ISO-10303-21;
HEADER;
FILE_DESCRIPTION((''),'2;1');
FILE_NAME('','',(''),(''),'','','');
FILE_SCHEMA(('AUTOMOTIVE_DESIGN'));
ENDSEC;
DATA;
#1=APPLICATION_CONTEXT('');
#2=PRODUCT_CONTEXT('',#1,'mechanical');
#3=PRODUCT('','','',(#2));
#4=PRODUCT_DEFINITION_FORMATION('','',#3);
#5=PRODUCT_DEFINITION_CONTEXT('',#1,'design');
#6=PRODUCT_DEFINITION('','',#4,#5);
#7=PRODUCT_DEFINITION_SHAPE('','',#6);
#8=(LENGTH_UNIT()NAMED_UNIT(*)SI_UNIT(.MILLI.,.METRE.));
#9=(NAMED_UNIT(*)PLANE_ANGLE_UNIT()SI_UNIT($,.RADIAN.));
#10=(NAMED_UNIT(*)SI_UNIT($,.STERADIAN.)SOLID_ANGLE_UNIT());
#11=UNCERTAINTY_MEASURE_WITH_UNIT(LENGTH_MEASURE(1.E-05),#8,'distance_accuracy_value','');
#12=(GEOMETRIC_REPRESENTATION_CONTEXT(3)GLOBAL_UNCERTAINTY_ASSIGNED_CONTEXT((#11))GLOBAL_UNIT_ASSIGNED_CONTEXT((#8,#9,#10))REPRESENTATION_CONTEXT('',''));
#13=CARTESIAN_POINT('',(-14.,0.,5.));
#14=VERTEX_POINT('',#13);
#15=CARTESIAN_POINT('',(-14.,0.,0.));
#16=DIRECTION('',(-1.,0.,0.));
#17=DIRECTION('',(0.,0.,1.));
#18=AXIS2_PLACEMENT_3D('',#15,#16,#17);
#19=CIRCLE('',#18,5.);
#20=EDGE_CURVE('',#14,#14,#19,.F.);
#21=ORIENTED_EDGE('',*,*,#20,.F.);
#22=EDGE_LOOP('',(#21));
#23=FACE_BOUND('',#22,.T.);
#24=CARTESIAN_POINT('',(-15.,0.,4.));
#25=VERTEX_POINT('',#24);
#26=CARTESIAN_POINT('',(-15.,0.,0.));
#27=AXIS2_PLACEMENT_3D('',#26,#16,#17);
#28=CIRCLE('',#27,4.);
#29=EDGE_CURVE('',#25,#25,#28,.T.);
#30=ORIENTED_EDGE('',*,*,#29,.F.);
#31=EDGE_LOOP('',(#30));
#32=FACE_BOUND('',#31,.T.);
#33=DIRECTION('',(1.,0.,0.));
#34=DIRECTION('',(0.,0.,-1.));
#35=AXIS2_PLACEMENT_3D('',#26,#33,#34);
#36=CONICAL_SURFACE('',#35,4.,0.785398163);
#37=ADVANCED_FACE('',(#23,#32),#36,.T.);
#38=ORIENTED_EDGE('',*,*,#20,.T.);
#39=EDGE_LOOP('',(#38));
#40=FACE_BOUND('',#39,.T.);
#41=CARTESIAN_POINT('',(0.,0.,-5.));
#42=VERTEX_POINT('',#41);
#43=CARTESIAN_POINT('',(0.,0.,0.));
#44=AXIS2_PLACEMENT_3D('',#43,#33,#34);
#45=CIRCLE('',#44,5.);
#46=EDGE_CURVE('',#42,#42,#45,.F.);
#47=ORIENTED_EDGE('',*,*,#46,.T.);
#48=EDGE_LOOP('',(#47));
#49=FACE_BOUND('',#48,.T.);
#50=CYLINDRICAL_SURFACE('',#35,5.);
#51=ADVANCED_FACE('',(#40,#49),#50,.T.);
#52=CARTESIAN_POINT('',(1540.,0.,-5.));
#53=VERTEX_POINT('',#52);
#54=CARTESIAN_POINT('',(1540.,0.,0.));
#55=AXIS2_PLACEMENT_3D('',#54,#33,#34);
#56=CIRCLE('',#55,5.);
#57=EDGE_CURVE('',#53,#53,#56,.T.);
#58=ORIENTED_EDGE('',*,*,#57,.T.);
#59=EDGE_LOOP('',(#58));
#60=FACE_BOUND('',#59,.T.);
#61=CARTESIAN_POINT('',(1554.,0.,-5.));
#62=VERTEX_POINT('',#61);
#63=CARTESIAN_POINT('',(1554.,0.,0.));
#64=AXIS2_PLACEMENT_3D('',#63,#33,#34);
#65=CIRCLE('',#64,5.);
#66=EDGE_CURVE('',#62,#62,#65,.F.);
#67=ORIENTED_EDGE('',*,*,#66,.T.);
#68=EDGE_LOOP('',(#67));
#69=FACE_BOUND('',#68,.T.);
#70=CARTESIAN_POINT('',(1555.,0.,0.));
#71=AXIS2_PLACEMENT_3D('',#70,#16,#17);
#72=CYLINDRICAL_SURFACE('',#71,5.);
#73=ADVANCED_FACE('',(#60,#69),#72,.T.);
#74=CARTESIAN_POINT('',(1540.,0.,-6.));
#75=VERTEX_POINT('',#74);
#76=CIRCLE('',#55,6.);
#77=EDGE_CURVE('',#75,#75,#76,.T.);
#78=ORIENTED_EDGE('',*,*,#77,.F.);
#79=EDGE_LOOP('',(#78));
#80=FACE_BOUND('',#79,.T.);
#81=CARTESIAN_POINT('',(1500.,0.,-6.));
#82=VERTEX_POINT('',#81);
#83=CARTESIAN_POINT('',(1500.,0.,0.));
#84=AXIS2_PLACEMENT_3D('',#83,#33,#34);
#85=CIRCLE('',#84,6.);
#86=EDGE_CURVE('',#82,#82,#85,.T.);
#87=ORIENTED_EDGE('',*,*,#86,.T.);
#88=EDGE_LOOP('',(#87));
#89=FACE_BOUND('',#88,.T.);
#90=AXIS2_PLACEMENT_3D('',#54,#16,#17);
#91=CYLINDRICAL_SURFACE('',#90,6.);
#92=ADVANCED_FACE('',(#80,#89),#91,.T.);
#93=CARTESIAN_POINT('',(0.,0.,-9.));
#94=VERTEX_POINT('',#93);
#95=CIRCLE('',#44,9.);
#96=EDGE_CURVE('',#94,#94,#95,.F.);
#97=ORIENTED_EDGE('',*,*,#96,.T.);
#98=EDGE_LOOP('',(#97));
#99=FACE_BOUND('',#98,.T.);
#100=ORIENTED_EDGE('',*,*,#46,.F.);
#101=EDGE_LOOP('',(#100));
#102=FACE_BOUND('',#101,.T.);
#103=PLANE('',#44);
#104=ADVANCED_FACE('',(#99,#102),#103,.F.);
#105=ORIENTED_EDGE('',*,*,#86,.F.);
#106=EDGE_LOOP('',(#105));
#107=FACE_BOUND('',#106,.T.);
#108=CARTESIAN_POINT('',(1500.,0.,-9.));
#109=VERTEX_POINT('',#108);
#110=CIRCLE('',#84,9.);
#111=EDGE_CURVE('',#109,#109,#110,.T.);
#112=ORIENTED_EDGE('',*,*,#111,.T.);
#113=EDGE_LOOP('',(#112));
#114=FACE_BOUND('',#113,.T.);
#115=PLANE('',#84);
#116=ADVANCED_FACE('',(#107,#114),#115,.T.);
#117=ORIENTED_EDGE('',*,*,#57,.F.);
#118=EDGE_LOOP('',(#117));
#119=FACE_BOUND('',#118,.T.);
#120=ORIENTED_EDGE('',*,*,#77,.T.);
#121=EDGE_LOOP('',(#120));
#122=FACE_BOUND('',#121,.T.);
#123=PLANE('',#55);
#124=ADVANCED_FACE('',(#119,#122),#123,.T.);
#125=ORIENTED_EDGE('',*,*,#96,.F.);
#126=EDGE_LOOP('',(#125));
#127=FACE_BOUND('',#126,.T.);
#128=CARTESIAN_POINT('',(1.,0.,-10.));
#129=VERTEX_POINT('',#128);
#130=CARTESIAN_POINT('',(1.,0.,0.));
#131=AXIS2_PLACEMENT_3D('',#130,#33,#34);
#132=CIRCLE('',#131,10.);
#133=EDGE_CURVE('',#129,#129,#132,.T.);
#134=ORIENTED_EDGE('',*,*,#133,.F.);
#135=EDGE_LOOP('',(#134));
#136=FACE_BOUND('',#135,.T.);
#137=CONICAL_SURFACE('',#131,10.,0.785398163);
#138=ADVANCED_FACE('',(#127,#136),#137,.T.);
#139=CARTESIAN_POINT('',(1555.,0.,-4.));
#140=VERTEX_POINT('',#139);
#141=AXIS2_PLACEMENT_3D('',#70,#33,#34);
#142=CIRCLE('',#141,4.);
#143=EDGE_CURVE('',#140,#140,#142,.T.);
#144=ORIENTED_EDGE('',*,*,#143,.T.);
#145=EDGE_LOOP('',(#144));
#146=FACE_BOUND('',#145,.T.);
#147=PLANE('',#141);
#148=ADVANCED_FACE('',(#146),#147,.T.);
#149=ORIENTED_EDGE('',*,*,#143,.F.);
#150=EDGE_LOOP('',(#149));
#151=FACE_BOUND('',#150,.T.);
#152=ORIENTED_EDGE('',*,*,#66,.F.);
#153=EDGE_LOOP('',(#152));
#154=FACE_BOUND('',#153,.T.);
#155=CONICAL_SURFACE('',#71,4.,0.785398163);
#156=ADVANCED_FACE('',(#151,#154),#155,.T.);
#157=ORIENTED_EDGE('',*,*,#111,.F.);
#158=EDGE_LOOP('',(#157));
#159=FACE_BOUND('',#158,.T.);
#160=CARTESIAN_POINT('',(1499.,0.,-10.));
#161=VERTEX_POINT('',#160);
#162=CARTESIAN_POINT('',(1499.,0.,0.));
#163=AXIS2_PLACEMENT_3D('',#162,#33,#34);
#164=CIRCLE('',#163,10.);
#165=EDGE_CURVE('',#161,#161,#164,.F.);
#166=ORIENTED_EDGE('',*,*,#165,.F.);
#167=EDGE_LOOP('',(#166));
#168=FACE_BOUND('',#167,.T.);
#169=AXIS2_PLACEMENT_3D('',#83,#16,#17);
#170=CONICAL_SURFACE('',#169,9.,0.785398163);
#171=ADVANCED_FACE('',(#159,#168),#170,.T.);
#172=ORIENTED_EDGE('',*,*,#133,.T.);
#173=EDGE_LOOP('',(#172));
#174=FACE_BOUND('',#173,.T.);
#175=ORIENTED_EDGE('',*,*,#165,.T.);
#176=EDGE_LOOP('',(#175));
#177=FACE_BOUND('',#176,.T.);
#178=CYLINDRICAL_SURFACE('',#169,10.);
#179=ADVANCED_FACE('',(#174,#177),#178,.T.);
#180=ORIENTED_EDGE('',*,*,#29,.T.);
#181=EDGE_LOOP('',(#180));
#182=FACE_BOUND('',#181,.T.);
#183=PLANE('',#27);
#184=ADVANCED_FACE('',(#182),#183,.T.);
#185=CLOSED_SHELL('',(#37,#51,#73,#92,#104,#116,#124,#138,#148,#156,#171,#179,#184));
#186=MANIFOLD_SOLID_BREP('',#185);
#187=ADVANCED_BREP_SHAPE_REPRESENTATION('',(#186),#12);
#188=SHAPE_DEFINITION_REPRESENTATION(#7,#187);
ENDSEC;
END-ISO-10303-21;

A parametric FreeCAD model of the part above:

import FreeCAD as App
import Part
import Sketcher

V = App.Vector
Q = App.Units.Quantity


def edges_at(feature, points):
    """Names of the edges that pass closest to the given points."""
    edges = feature.Shape.Edges
    near = lambda p: min(range(len(edges)), key=lambda i: edges[i].distToShape(Part.Vertex(*p))[0])
    return sorted({f"Edge{near(p) + 1}" for p in points})

doc = App.newDocument("Part")
body = doc.addObject("PartDesign::Body", "Body")

# Sketch on YZ plane
sketch1 = body.newObject("Sketcher::SketchObject", "Sketch")
sketch1.AttachmentSupport = (doc.getObject("YZ_Plane"), [""])
sketch1.MapMode = "FlatFace"
sketch1.addGeometry(Part.Circle(V(0, 0, 0), V(0, 0, 1), 10), False)
sketch1.addConstraint([
    Sketcher.Constraint("Coincident", 0, 3, -1, 1),
    Sketcher.Constraint("Diameter", 0, Q("20 mm")),
])
pad1 = body.newObject("PartDesign::Pad", "Pad")
pad1.Profile = sketch1
pad1.Length = 1500

# Sketch on YZ plane
sketch2 = body.newObject("Sketcher::SketchObject", "Sketch001")
sketch2.AttachmentSupport = (doc.getObject("YZ_Plane"), [""])
sketch2.MapMode = "FlatFace"
sketch2.addGeometry(Part.Circle(V(0, 0, 0), V(0, 0, 1), 5), False)
sketch2.addConstraint([
    Sketcher.Constraint("Coincident", 0, 3, -1, 1),
    Sketcher.Constraint("Diameter", 0, Q("10 mm")),
])
pad2 = body.newObject("PartDesign::Pad", "Pad001")
pad2.Profile = sketch2
pad2.Length = 15
pad2.Reversed = True

# Sketch on YZ plane
sketch3 = body.newObject("Sketcher::SketchObject", "Sketch002")
sketch3.AttachmentSupport = (doc.getObject("YZ_Plane"), [""])
sketch3.MapMode = "FlatFace"
sketch3.AttachmentOffset = App.Placement(V(0, 0, 1500), App.Rotation())
sketch3.addGeometry(Part.Circle(V(0, 0, 0), V(0, 0, 1), 6), False)
sketch3.addConstraint([
    Sketcher.Constraint("Coincident", 0, 3, -1, 1),
    Sketcher.Constraint("Diameter", 0, Q("12 mm")),
])
pad3 = body.newObject("PartDesign::Pad", "Pad002")
pad3.Profile = sketch3
pad3.Length = 40

# Sketch on YZ plane
sketch4 = body.newObject("Sketcher::SketchObject", "Sketch003")
sketch4.AttachmentSupport = (doc.getObject("YZ_Plane"), [""])
sketch4.MapMode = "FlatFace"
sketch4.AttachmentOffset = App.Placement(V(0, 0, 1555), App.Rotation())
sketch4.addGeometry(Part.Circle(V(0, 0, 0), V(0, 0, 1), 5), False)
sketch4.addConstraint([
    Sketcher.Constraint("Coincident", 0, 3, -1, 1),
    Sketcher.Constraint("Diameter", 0, Q("10 mm")),
])
pad4 = body.newObject("PartDesign::Pad", "Pad003")
pad4.Profile = sketch4
pad4.Length = 15
pad4.Reversed = True
doc.recompute()

chamfer = body.newObject("PartDesign::Chamfer", "Chamfer")
chamfer.Base = (pad4, edges_at(pad4, [(1555, 0, 5), (1500, 0, 10)]))
chamfer.Size = 1
doc.recompute()

chamfer2 = body.newObject("PartDesign::Chamfer", "Chamfer001")
chamfer2.Base = (chamfer, edges_at(chamfer, [(0, 0, 10), (-15, 0, 5)]))
chamfer2.Size = 1

doc.recompute()
